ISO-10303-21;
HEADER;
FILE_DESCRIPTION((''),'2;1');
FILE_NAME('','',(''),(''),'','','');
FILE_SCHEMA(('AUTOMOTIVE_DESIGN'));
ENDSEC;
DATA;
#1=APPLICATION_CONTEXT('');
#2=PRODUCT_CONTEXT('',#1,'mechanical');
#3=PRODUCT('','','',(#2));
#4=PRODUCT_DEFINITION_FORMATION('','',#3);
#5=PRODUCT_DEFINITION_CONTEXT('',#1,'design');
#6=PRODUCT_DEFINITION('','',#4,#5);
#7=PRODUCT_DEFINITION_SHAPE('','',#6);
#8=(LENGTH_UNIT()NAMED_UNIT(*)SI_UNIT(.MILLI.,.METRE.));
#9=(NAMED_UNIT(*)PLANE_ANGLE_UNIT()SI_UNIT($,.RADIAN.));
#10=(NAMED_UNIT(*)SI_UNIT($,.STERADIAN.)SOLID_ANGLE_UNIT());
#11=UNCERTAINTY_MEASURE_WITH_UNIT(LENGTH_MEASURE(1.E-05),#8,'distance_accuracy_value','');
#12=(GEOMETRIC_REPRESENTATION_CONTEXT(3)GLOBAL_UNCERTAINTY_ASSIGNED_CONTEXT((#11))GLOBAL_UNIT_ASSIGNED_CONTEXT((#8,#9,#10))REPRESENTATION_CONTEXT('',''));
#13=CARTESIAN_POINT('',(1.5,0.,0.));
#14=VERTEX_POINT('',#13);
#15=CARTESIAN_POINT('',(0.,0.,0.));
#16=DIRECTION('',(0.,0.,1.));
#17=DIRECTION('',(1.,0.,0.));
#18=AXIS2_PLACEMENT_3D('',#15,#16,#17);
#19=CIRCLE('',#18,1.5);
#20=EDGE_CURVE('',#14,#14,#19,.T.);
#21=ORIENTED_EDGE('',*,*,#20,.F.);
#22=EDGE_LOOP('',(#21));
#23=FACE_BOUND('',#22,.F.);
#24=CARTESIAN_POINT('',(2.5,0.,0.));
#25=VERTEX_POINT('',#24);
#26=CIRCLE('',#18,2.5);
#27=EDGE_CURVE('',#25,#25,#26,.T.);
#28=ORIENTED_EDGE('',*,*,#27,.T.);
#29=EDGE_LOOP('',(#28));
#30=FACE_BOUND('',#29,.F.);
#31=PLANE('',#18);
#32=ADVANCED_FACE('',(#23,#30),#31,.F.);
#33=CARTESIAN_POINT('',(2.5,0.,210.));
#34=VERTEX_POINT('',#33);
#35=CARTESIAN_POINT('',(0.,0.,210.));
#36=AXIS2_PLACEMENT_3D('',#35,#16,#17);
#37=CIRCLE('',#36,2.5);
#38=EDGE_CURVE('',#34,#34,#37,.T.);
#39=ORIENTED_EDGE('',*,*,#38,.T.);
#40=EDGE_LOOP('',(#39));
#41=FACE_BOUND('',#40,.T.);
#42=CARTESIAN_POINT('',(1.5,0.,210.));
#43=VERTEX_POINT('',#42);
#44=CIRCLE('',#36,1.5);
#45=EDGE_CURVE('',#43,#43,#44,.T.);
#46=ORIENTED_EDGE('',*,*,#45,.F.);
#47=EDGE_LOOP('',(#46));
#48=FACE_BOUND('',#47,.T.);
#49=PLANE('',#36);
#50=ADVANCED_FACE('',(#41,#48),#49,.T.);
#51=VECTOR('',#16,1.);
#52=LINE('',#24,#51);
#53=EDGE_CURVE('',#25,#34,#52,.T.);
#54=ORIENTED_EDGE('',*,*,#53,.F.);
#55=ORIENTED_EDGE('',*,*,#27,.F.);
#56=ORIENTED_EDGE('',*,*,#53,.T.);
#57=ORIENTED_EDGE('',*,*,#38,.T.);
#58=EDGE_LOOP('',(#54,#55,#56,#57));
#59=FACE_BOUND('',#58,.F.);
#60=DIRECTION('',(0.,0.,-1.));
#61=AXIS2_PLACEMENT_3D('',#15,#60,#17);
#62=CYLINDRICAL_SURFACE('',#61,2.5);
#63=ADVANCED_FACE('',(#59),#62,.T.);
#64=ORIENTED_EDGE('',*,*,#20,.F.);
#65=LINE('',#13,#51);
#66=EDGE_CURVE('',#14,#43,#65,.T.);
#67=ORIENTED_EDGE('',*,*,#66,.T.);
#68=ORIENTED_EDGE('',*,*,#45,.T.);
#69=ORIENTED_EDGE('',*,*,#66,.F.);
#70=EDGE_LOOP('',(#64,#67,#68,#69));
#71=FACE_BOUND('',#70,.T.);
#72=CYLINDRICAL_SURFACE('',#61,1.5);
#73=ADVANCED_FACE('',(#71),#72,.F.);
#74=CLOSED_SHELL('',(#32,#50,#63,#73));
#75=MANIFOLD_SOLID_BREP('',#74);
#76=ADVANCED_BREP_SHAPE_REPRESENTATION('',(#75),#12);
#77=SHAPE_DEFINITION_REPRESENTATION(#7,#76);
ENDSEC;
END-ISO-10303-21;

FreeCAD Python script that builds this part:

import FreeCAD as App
import Part
import Sketcher
from FreeCAD import Vector

doc = App.newDocument("Part")
params = doc.addObject("Spreadsheet::Sheet", "Params")
for row, (alias, value) in enumerate([
    ("sketch1_diameter", "5 mm"),
    ("sketch1_diameter2", "3 mm"),
    ("pad1_length", "210 mm"),
], start=1):
    params.set(f"A{row}", alias)
    params.set(f"B{row}", "=" + value)
    params.setAlias(f"B{row}", alias)

body = doc.addObject("PartDesign::Body", "Body")

sketch1 = body.newObject("Sketcher::SketchObject", "Sketch")
sketch1.AttachmentSupport = (doc.getObject("XY_Plane"), [""])
sketch1.MapMode = "FlatFace"
sketch1.addGeometry([
    Part.Circle(Vector(0, 0, 0), Vector(0, 0, 1), 2.5),
    Part.Circle(Vector(0, 0, 0), Vector(0, 0, 1), 1.5),
], False)
sketch1.addConstraint([
    Sketcher.Constraint("Coincident", 0, 3, -1, 1),
    Sketcher.Constraint("Coincident", 1, 3, -1, 1),
    Sketcher.Constraint("Diameter", 0, 5.0),
    Sketcher.Constraint("Diameter", 1, 3.0),
])
sketch1.setExpression("Constraints[2]", "Params.sketch1_diameter")
sketch1.setExpression("Constraints[3]", "Params.sketch1_diameter2")
pad1 = body.newObject("PartDesign::Pad", "Pad")
pad1.Profile = sketch1
pad1.setExpression("Length", "Params.pad1_length")

doc.recompute()
